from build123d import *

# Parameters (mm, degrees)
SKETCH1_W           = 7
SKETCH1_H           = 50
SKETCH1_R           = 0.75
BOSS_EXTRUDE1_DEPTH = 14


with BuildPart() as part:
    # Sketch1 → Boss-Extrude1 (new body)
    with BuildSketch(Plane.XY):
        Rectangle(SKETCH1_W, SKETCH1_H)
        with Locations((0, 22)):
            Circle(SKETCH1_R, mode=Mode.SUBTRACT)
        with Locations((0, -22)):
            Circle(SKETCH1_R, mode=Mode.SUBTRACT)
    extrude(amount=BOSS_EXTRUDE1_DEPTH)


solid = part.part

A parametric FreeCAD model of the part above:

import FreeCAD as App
import Part
import Sketcher


def add_polygon(sketch, points):
    """Adds a closed chain of lines whose ends are joined by coincident constraints."""
    first, n = sketch.GeometryCount, len(points)
    for a, b in zip(points, points[1:] + points[:1]):
        sketch.addGeometry(Part.LineSegment(App.Vector(*a, 0), App.Vector(*b, 0)), False)
    for i in range(n):
        sketch.addConstraint(Sketcher.Constraint("Coincident", first + i, 2, first + (i + 1) % n, 1))

doc = App.newDocument("Part")
body = doc.addObject("PartDesign::Body", "Body")

# Sketch on XY plane
sketch1 = doc.addObject("Sketcher::SketchObject", "Sketch")
body.addObject(sketch1)
sketch1.AttachmentSupport = (doc.XY_Plane, [""])
sketch1.MapMode = "FlatFace"
add_polygon(sketch1, [(-3.5, 25), (-3.5, -25), (3.5, -25), (3.5, 25)])  # lines 0-3
sketch1.addGeometry(Part.Circle(App.Vector(0, -22, 0), App.Vector(0, 0, 1), 0.75), False)  # 4
sketch1.addGeometry(Part.Circle(App.Vector(0, 22, 0), App.Vector(0, 0, 1), 0.75), False)  # 5
sketch1.addConstraint([
    Sketcher.Constraint("Vertical", 0),
    Sketcher.Constraint("Horizontal", 1),
    Sketcher.Constraint("Vertical", 2),
    Sketcher.Constraint("Horizontal", 3),
    Sketcher.Constraint("Equal", 4, 5),
    Sketcher.Constraint("Symmetric", 4, 3, 5, 3, -1, 1),
    Sketcher.Constraint("Symmetric", 0, 2, 2, 2, -1, 1),
    Sketcher.Constraint("PointOnObject", 4, 3, -2),
    Sketcher.Constraint("Diameter", 4, 1.5),
    Sketcher.Constraint("DistanceX", 1, 1, 1, 2, 7.0),
    Sketcher.Constraint("DistanceY", 0, 2, 0, 1, 50.0),
    Sketcher.Constraint("DistanceY", 4, 3, -1, 1, 22.0),
])
pad1 = doc.addObject("PartDesign::Pad", "Pad")
body.addObject(pad1)
pad1.Profile = sketch1
pad1.Length = 14

doc.recompute()
